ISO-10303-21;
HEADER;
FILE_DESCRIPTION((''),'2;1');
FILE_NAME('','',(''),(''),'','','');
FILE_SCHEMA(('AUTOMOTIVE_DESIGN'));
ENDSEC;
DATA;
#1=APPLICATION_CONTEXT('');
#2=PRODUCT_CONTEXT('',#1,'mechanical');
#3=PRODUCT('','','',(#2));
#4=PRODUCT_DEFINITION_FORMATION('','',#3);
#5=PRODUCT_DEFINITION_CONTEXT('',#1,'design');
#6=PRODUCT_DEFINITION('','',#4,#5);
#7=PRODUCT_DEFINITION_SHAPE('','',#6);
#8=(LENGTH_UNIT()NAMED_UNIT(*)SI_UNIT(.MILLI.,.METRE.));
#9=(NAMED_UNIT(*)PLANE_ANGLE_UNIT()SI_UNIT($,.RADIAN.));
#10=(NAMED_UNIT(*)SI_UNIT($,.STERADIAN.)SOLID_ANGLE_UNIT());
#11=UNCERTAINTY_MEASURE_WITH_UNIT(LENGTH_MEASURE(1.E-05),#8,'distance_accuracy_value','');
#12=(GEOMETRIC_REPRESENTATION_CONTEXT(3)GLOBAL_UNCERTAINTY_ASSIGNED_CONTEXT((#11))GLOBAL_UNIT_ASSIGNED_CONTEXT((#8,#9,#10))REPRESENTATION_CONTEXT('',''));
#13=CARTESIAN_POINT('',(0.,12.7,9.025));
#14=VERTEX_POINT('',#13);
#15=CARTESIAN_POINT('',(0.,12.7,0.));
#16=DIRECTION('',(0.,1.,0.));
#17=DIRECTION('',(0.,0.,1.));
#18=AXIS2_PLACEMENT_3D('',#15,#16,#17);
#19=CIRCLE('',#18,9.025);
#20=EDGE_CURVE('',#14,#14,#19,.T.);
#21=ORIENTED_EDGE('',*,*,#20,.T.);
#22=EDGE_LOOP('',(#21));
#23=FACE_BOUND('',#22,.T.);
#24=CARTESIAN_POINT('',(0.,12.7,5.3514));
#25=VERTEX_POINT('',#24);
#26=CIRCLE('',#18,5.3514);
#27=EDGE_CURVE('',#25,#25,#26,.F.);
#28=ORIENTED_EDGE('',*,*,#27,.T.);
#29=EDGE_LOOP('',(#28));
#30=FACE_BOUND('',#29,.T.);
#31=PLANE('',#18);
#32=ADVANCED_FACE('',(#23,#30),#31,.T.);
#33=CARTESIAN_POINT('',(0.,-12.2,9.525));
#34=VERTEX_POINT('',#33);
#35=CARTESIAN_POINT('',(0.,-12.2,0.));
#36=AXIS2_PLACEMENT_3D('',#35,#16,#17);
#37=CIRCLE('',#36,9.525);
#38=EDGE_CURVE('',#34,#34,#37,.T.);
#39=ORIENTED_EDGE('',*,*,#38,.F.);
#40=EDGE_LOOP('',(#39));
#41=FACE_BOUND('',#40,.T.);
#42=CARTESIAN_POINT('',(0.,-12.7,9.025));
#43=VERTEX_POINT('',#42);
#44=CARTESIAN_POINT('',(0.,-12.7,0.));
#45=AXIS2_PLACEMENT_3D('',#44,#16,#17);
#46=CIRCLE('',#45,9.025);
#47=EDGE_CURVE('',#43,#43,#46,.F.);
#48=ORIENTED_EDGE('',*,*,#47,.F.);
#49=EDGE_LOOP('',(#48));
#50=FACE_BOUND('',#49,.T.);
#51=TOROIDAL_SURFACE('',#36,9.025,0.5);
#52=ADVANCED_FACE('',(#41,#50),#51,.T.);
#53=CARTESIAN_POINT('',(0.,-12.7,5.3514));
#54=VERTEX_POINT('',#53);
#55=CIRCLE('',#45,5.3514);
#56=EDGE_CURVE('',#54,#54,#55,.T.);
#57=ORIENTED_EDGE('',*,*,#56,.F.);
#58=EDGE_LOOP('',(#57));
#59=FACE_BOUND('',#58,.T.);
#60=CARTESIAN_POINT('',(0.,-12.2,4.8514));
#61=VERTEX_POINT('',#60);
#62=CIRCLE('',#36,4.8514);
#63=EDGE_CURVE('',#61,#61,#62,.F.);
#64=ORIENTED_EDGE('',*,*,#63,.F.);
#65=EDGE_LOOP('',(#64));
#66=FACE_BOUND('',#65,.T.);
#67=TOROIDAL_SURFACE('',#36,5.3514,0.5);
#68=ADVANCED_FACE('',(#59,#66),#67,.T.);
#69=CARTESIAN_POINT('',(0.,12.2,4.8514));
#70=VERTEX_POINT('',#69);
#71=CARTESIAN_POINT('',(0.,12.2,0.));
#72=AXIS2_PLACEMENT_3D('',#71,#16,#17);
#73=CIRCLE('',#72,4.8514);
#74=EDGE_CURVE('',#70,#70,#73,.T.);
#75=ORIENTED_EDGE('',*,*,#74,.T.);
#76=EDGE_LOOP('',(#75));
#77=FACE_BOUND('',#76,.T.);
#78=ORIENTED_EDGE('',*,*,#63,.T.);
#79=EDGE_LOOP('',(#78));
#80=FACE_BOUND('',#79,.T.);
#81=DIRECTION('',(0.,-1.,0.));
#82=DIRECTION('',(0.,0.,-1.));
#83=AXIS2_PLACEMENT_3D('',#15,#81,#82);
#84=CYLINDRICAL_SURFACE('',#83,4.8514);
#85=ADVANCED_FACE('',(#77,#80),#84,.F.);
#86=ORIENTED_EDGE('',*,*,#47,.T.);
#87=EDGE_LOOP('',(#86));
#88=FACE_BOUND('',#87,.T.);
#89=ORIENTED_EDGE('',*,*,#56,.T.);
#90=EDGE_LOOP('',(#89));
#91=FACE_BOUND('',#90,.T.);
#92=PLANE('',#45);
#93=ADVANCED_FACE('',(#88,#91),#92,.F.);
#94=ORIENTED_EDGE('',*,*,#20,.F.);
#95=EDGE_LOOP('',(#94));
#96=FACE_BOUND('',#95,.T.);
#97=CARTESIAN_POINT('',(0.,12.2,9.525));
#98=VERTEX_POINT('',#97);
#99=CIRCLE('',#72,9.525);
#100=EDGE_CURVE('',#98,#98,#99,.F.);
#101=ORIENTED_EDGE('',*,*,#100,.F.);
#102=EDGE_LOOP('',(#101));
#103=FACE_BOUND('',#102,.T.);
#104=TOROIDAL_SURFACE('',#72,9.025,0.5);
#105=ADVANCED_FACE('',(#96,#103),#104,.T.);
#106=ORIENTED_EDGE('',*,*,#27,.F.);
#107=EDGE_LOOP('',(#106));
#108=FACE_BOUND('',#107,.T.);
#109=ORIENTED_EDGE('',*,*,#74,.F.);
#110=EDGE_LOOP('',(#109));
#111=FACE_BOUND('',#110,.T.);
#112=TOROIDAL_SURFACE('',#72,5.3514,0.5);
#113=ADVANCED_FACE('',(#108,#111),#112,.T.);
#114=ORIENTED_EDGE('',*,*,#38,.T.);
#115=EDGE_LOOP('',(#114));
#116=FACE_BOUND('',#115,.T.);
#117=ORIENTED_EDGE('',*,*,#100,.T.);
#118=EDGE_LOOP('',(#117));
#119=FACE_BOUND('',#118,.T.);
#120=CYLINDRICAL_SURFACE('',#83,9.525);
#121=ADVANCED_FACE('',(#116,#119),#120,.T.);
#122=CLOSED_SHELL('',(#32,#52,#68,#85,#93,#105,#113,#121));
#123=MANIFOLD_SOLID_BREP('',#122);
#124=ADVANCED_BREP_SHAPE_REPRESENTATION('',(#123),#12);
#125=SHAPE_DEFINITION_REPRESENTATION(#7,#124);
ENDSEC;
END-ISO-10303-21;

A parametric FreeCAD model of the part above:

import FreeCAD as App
import Part
import Sketcher
Q = App.Units.Quantity


def edges_at(feature, points):
    """Names of the edges that pass closest to the given points."""
    edges = feature.Shape.Edges
    near = lambda p: min(range(len(edges)), key=lambda i: edges[i].distToShape(Part.Vertex(*p))[0])
    return sorted({f"Edge{near(p) + 1}" for p in points})

doc = App.newDocument("Part")
body = doc.addObject("PartDesign::Body", "Body")

sketch1 = body.newObject("Sketcher::SketchObject", "Sketch")
sketch1.AttachmentSupport = (doc.getObject("XZ_Plane"), [""])
sketch1.MapMode = "FlatFace"
sketch1.addGeometry([
    Part.Circle(App.Vector(0, 0, 0), App.Vector(0, 0, 1), 9.5),
    Part.Circle(App.Vector(0, 0, 0), App.Vector(0, 0, 1), 4.9),
], False)
sketch1.addConstraint([
    Sketcher.Constraint("Coincident", 0, 3, -1, 1),
    Sketcher.Constraint("Coincident", 1, 3, -1, 1),
    Sketcher.Constraint("Diameter", 0, Q("0.75 in")),
    Sketcher.Constraint("Diameter", 1, Q("0.382 in")),
])
pad1 = body.newObject("PartDesign::Pad", "Pad")
pad1.Profile = sketch1
pad1.Length = Q("1 in")
pad1.Midplane = True
doc.recompute()

fillet = body.newObject("PartDesign::Fillet", "Fillet")
fillet.Base = (pad1, edges_at(pad1, [
    (-9.525, -12.7, 0),
    (-9.525, 12.7, 0),
    (-4.851, -12.7, 0),
    (-4.851, 12.7, 0),
]))
fillet.Radius = 0.5

doc.recompute()
